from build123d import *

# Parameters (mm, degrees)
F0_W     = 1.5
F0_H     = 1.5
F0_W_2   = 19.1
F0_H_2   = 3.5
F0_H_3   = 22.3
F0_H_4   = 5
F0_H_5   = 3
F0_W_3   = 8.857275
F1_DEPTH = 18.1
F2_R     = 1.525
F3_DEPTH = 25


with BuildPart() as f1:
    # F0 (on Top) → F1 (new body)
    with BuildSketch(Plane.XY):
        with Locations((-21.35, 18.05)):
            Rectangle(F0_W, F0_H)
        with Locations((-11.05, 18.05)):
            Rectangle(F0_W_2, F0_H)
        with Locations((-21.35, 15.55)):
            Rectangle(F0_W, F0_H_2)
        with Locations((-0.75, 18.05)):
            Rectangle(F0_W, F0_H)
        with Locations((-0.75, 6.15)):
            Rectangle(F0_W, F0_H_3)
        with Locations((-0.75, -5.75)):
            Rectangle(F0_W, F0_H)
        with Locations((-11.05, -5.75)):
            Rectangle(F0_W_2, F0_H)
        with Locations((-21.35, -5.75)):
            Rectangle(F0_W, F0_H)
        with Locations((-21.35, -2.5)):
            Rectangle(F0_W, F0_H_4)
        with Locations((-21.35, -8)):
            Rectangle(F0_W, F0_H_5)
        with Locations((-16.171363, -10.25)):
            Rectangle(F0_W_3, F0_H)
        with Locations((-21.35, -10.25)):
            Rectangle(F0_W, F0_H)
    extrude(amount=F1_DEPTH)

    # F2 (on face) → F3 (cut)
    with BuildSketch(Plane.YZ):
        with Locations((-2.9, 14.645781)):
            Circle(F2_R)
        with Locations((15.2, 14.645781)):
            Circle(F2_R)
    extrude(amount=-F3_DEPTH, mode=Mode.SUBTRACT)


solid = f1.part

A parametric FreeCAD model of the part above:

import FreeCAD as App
import Part
import Sketcher
Q = App.Units.Quantity


def add_polygon(sketch, points):
    """Adds a closed chain of lines whose ends are joined by coincident constraints."""
    first, n = sketch.GeometryCount, len(points)
    for a, b in zip(points, points[1:] + points[:1]):
        sketch.addGeometry(Part.LineSegment(App.Vector(*a, 0), App.Vector(*b, 0)), False)
    for i in range(n):
        sketch.addConstraint(Sketcher.Constraint("Coincident", first + i, 2, first + (i + 1) % n, 1))

doc = App.newDocument("Part")
body = doc.addObject("PartDesign::Body", "Body")

sketch1 = body.newObject("Sketcher::SketchObject", "Sketch")
sketch1.AttachmentSupport = (doc.getObject("XY_Plane"), [""])
sketch1.MapMode = "FlatFace"
add_polygon(sketch1, [(0, 18.8), (-22.1, 18.8), (-22.1, 13.8), (-20.6, 13.8), (-20.6, 17.3), (-1.5, 17.3), (-1.5, -5), (-20.6, -5), (-20.6, 0), (-22.1, 0), (-22.1, -11), (-11.742726, -11), (-11.742726, -9.5), (-20.6, -9.5), (-20.6, -6.5), (0, -6.5)])
sketch1.addConstraint([
    Sketcher.Constraint("Horizontal", 0),
    Sketcher.Constraint("Vertical", 1),
    Sketcher.Constraint("Horizontal", 2),
    Sketcher.Constraint("Vertical", 3),
    Sketcher.Constraint("Horizontal", 4),
    Sketcher.Constraint("Vertical", 5),
    Sketcher.Constraint("Horizontal", 6),
    Sketcher.Constraint("Vertical", 7),
    Sketcher.Constraint("Horizontal", 8),
    Sketcher.Constraint("Vertical", 9),
    Sketcher.Constraint("Horizontal", 10),
    Sketcher.Constraint("Vertical", 11),
    Sketcher.Constraint("Horizontal", 12),
    Sketcher.Constraint("Vertical", 13),
    Sketcher.Constraint("Horizontal", 14),
    Sketcher.Constraint("Vertical", 15),
    Sketcher.Constraint("PointOnObject", 7, 2, -1),
    Sketcher.Constraint("PointOnObject", 14, 2, -2),
    Sketcher.Constraint("Vertical", 3, 2, 6, 2),
    Sketcher.Constraint("Vertical", 1, 2, 8, 2),
    Sketcher.Constraint("Vertical", 7, 2, 12, 2),
    Sketcher.Constraint("Equal", 1, 7),
    Sketcher.Constraint("Equal", 8, 11),
    Sketcher.Constraint("DistanceY", 1, 2, 1, 1, Q("5 mm")),
    Sketcher.Constraint("DistanceY", 9, 2, 9, 1, Q("11 mm")),
    Sketcher.Constraint("DistanceY", 13, 1, 13, 2, Q("3 mm")),
    Sketcher.Constraint("DistanceX", 0, 2, 0, 1, Q("22.1 mm")),
    Sketcher.Constraint("DistanceX", 2, 1, 2, 2, Q("1.5 mm")),
    Sketcher.Constraint("DistanceX", 4, 1, 4, 2, Q("19.1 mm")),
    Sketcher.Constraint("DistanceY", 3, 1, 3, 2, Q("3.5 mm")),
    Sketcher.Constraint("DistanceY", 5, 2, 5, 1, Q("22.3 mm")),
    Sketcher.Constraint("DistanceX", 10, 1, 10, 2, Q("10.357275 mm")),
])
pad1 = body.newObject("PartDesign::Pad", "Pad")
pad1.Profile = sketch1
pad1.Length = 18.1

sketch2 = body.newObject("Sketcher::SketchObject", "Sketch001")
sketch2.AttachmentSupport = (doc.getObject("YZ_Plane"), [""])
sketch2.MapMode = "FlatFace"
sketch2.addGeometry([
    Part.Circle(App.Vector(-2.9, 14.645781, 0), App.Vector(0, 0, 1), 1.525),
    Part.Circle(App.Vector(15.2, 14.645781, 0), App.Vector(0, 0, 1), 1.525),
], False)
sketch2.addConstraint([
    Sketcher.Constraint("Equal", 0, 1),
    Sketcher.Constraint("Horizontal", 0, 3, 1, 3),
    Sketcher.Constraint("Diameter", 0, Q("3.05 mm")),
    Sketcher.Constraint("DistanceX", 0, 3, -1, 1, Q("2.9 mm")),
    Sketcher.Constraint("DistanceX", -1, 1, 1, 3, Q("15.2 mm")),
    Sketcher.Constraint("DistanceY", -1, 1, 0, 3, Q("14.645781 mm")),
])
pocket1 = body.newObject("PartDesign::Pocket", "Pocket")
pocket1.Profile = sketch2
pocket1.Length = 25

doc.recompute()
